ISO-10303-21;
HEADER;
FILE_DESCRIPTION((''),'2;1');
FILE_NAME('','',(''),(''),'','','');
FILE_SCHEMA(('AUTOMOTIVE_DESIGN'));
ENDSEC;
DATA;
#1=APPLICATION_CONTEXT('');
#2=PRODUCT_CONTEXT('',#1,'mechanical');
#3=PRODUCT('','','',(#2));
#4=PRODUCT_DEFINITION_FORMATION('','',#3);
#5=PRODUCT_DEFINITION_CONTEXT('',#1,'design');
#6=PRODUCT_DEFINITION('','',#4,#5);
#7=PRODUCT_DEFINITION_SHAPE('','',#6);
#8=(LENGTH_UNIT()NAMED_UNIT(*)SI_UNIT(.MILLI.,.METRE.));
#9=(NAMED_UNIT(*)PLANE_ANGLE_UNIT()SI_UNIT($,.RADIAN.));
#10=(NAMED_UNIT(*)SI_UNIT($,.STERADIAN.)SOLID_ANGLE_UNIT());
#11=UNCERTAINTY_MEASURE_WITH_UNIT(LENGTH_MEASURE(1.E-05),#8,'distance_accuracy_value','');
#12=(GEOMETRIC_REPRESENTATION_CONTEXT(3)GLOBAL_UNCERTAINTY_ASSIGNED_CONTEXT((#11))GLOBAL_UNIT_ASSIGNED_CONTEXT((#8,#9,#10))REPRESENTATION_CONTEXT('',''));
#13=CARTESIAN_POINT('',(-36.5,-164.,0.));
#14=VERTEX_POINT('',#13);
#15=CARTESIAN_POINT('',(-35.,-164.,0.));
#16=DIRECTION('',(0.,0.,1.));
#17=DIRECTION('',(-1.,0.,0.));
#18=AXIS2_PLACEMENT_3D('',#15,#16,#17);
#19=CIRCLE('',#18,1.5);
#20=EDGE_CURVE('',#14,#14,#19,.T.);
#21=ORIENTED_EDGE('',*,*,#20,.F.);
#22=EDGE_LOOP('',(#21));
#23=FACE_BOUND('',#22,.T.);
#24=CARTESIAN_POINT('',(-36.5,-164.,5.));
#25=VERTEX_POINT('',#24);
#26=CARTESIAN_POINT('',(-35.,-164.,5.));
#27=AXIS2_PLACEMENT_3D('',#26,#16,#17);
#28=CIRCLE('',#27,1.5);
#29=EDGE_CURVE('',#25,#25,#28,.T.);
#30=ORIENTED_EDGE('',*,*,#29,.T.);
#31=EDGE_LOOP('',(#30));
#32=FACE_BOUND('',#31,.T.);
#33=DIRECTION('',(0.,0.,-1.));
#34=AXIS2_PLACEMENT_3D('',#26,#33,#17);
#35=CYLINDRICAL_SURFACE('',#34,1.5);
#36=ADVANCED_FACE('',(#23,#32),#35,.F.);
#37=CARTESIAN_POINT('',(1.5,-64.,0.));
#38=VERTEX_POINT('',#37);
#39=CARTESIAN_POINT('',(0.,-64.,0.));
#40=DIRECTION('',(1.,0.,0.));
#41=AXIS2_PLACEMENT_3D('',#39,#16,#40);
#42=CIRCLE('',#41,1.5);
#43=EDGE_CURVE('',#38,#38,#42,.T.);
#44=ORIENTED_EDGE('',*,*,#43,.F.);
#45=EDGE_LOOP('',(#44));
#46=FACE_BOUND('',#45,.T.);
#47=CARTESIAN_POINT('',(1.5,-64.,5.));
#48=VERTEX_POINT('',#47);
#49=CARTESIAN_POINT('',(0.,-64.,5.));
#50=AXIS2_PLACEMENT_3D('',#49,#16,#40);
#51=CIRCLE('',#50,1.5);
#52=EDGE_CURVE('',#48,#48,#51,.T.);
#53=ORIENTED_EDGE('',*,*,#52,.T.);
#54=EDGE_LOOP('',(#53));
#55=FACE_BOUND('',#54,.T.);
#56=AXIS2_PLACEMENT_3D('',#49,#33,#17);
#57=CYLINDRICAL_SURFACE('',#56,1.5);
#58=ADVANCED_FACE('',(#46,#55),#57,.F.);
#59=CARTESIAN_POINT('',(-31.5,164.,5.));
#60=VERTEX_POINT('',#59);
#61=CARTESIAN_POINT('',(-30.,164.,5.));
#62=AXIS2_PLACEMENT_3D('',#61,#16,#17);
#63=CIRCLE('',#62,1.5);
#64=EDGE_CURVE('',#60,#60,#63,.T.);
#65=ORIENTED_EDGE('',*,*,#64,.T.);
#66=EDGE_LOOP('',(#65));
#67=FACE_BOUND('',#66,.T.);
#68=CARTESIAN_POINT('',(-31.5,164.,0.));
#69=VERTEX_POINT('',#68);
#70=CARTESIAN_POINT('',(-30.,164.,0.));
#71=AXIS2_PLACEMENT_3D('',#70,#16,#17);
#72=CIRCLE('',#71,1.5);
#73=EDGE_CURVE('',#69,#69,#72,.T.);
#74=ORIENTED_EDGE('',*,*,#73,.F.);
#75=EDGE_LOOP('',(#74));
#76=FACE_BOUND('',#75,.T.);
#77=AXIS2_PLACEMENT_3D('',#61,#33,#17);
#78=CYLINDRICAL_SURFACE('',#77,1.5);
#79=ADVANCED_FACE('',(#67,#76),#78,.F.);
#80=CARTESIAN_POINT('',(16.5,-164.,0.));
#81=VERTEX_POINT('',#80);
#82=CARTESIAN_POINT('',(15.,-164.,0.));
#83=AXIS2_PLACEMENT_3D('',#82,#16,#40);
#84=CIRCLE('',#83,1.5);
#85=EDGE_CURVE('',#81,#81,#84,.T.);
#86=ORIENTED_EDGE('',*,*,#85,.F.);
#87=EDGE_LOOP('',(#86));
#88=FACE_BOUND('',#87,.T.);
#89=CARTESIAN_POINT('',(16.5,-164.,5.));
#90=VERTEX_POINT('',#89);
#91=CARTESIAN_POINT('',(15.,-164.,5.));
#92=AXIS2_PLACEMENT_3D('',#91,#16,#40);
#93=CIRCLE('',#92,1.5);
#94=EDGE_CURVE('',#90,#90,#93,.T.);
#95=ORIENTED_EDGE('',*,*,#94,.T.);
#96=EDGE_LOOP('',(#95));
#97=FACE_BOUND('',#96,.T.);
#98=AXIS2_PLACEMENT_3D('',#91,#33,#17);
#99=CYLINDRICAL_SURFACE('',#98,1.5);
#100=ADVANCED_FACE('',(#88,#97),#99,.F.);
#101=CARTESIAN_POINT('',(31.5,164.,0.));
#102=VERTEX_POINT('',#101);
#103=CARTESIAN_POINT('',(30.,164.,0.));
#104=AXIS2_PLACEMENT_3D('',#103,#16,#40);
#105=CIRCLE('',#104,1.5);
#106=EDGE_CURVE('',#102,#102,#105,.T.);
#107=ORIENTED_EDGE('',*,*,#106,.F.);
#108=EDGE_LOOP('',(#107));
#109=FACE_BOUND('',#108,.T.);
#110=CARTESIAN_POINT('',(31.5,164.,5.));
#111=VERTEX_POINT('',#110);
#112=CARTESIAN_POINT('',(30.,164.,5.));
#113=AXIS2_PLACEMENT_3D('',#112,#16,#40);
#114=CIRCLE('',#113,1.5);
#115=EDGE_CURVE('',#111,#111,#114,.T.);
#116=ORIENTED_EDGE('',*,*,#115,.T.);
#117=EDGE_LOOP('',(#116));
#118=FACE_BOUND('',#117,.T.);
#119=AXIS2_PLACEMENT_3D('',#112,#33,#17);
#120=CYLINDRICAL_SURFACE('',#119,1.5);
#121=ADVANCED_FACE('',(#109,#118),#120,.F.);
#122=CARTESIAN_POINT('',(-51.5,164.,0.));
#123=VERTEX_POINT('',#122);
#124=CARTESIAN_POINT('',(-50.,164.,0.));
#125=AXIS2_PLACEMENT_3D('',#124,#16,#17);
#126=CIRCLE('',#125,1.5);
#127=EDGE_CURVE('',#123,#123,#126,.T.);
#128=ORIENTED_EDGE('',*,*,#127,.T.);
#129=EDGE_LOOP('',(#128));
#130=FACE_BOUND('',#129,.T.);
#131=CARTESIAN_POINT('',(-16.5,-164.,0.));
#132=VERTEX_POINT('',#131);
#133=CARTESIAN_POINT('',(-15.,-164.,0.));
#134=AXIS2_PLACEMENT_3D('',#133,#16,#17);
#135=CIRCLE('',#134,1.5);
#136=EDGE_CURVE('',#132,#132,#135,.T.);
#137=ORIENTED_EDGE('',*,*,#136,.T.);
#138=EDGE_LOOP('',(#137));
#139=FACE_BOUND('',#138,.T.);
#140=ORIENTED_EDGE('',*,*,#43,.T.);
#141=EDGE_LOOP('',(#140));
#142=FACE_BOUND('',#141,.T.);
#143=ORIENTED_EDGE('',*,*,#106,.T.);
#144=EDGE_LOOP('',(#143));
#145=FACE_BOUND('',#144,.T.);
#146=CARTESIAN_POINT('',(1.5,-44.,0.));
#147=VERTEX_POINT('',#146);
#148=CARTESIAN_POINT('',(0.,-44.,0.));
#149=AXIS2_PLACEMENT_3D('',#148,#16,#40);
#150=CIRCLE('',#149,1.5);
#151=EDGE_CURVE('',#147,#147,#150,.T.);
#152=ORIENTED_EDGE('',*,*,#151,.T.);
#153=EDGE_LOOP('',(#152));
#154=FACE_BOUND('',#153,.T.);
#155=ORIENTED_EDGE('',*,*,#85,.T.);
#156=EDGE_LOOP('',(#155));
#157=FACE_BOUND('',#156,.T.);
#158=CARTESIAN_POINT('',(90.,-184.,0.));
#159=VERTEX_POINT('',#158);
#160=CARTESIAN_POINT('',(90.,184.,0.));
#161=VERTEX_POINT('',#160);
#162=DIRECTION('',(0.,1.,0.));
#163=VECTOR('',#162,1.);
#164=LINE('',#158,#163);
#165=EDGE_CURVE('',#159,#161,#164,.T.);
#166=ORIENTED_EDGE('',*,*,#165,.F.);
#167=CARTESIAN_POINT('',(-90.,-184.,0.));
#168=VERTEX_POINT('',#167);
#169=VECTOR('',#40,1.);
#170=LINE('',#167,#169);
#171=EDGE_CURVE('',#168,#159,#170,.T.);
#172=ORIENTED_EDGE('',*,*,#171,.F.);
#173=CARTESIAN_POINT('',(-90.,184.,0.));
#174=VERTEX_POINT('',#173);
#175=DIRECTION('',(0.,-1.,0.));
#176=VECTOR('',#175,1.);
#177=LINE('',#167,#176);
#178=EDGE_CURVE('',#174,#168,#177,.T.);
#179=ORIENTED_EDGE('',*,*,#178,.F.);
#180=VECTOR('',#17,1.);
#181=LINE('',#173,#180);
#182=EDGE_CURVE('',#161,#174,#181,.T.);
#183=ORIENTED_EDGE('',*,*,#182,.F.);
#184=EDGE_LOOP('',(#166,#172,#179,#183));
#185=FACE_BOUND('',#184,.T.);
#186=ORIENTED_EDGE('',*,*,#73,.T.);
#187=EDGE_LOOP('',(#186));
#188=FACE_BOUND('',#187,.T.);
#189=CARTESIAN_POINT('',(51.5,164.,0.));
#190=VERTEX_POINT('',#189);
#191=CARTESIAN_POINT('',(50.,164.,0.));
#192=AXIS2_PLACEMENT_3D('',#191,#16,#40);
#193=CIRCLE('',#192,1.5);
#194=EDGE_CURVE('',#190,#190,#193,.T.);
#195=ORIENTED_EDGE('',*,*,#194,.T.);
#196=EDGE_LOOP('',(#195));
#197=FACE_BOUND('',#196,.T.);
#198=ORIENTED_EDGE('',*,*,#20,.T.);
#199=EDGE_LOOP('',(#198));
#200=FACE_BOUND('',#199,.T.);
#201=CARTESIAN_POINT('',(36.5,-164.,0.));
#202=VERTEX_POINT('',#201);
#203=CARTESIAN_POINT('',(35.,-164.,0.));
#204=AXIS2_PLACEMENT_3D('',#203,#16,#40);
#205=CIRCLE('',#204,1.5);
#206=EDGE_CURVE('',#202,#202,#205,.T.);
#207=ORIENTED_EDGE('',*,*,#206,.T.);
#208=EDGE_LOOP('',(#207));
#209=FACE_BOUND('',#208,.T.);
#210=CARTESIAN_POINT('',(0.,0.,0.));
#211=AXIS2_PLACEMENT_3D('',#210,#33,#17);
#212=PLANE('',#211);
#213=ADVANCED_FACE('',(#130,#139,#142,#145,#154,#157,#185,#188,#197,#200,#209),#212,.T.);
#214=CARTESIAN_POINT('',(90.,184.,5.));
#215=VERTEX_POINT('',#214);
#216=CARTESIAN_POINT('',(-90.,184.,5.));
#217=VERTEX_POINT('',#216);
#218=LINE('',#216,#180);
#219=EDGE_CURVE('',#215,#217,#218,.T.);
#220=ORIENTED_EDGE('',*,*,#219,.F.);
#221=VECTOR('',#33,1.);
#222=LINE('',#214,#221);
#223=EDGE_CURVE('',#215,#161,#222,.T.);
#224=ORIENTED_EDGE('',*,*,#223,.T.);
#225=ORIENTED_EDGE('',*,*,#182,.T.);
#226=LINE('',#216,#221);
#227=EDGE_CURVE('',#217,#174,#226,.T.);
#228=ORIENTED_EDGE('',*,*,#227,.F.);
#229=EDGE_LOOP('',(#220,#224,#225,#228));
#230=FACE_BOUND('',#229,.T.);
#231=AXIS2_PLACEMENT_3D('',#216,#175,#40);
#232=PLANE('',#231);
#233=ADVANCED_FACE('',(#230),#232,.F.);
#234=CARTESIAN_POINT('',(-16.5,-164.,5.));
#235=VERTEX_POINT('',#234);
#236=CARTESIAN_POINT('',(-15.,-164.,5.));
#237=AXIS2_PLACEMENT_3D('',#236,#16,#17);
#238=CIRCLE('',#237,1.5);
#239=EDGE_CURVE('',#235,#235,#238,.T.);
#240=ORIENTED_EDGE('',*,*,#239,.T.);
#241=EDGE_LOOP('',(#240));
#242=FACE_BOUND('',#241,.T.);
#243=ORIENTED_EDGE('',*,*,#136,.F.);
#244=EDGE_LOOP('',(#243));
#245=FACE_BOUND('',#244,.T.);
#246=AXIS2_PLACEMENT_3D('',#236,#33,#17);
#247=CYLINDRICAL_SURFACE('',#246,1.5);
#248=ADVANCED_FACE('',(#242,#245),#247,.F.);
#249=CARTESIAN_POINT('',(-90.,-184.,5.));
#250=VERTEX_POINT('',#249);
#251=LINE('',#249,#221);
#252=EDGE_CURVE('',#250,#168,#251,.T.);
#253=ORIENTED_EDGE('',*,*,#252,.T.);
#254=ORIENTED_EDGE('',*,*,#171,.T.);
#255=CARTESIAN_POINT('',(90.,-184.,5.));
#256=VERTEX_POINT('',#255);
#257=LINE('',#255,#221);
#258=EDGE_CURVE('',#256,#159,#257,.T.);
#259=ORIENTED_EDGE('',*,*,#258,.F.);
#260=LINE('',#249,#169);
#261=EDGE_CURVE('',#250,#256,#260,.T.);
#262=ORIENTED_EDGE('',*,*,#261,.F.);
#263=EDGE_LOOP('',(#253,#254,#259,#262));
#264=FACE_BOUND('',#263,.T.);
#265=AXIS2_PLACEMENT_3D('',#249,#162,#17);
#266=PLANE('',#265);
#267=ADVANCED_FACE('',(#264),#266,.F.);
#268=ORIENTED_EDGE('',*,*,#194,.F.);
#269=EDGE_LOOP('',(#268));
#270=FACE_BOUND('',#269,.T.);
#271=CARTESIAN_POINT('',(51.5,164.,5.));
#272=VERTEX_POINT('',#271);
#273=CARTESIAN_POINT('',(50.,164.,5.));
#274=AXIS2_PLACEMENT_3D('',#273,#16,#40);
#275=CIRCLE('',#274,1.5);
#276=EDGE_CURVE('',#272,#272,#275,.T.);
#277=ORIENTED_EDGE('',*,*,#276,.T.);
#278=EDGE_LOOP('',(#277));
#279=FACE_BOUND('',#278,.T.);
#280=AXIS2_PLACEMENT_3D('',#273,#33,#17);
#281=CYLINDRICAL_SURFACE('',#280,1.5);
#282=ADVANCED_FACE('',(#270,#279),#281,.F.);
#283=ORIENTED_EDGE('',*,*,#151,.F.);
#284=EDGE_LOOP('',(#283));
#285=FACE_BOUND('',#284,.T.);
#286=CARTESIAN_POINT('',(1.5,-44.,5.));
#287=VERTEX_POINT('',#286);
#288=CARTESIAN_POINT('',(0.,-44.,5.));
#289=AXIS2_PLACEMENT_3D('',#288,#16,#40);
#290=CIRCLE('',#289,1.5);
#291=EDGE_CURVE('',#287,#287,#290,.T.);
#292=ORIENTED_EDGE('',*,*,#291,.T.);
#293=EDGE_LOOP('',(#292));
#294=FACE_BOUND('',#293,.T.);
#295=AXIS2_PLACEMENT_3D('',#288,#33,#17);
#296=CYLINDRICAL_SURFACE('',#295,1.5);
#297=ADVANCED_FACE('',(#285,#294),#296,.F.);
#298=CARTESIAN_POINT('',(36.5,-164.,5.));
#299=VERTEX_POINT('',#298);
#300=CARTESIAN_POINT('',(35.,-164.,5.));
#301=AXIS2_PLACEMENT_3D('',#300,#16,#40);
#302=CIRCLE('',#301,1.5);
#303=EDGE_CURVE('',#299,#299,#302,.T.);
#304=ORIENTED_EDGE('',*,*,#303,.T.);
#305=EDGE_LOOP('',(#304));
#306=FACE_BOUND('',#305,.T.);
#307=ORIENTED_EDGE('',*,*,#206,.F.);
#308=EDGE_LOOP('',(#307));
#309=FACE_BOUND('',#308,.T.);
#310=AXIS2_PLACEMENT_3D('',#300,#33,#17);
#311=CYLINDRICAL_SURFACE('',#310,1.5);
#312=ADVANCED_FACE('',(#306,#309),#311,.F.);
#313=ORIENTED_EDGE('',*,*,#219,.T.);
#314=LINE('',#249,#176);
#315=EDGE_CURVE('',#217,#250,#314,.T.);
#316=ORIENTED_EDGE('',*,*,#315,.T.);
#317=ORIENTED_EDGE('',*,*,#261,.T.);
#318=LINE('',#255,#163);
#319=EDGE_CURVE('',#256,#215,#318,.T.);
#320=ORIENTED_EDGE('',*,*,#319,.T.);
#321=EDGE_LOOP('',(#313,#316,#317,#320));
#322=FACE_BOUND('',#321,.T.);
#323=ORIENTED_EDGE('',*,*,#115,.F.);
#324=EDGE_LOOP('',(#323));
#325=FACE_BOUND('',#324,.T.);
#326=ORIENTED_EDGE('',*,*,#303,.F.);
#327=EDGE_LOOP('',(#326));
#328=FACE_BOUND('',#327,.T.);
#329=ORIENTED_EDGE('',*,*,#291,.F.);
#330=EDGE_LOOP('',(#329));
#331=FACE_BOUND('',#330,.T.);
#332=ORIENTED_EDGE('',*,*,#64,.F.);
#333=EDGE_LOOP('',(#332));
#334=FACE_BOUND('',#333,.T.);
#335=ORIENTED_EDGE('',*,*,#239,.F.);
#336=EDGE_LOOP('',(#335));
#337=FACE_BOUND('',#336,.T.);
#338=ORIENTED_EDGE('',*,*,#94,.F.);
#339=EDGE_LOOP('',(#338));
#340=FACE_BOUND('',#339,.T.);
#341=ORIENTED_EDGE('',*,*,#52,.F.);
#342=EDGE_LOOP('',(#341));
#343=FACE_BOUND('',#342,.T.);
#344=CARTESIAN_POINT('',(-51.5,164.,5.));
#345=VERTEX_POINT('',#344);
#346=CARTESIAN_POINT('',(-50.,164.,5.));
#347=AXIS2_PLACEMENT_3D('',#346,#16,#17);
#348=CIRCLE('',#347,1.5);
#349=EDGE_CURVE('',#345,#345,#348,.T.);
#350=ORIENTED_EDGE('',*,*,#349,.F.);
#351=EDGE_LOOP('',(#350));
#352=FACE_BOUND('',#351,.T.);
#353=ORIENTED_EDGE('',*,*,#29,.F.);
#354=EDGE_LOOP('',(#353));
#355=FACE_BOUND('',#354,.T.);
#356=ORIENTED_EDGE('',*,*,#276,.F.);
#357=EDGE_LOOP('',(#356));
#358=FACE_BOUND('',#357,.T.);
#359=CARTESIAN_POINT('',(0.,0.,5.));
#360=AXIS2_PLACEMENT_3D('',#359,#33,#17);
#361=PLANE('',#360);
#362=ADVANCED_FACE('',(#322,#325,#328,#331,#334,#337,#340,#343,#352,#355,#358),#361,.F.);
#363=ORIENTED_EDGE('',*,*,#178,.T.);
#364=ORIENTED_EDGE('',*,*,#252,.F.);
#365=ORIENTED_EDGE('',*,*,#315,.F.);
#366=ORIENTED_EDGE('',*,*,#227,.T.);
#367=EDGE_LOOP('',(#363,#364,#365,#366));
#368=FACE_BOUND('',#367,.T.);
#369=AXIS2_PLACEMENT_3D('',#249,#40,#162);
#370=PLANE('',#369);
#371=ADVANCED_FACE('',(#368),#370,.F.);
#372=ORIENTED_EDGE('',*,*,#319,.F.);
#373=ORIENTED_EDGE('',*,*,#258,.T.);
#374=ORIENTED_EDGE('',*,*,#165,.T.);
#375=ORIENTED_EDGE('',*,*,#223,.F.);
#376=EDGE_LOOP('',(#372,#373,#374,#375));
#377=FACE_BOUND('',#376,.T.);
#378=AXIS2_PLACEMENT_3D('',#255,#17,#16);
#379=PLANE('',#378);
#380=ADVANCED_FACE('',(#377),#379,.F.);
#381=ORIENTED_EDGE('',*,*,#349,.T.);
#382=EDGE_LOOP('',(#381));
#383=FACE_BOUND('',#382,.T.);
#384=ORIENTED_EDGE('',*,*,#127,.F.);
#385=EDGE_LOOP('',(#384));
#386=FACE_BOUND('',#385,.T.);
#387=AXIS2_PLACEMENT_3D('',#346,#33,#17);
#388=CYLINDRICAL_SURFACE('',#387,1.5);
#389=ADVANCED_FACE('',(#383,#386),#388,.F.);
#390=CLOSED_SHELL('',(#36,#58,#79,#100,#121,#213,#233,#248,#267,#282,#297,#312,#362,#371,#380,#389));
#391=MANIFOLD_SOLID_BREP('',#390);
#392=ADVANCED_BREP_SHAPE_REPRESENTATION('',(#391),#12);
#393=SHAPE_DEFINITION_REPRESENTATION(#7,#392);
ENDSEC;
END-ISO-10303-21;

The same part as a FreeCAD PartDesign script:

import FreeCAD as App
import Part
import Sketcher
from FreeCAD import Vector
Q = App.Units.Quantity

doc = App.newDocument("Part")
body = doc.addObject("PartDesign::Body", "Body")

# Sketch on XY plane
sketch1 = body.newObject("Sketcher::SketchObject", "Sketch")
sketch1.AttachmentSupport = (doc.getObject("XY_Plane"), [""])
sketch1.MapMode = "FlatFace"
sketch1.addGeometry(Part.LineSegment(Vector(-90, 184, 0), Vector(-90, -184, 0)), False)
sketch1.addGeometry(Part.LineSegment(Vector(-90, -184, 0), Vector(90, -184, 0)), False)
sketch1.addGeometry(Part.LineSegment(Vector(90, -184, 0), Vector(90, 184, 0)), False)
sketch1.addGeometry(Part.LineSegment(Vector(90, 184, 0), Vector(-90, 184, 0)), False)
sketch1.addGeometry(Part.Circle(Vector(-35, -164, 0), Vector(0, 0, 1), 1.5), False)
sketch1.addGeometry(Part.Circle(Vector(-15, -164, 0), Vector(0, 0, 1), 1.5), False)
sketch1.addGeometry(Part.Circle(Vector(0, -64, 0), Vector(0, 0, 1), 1.5), False)
sketch1.addGeometry(Part.Circle(Vector(0, -44, 0), Vector(0, 0, 1), 1.5), False)
sketch1.addGeometry(Part.Circle(Vector(15, -164, 0), Vector(0, 0, 1), 1.5), False)
sketch1.addGeometry(Part.Circle(Vector(35, -164, 0), Vector(0, 0, 1), 1.5), False)
sketch1.addGeometry(Part.Circle(Vector(-50, 164, 0), Vector(0, 0, 1), 1.5), False)
sketch1.addGeometry(Part.Circle(Vector(-30, 164, 0), Vector(0, 0, 1), 1.5), False)
sketch1.addGeometry(Part.Circle(Vector(30, 164, 0), Vector(0, 0, 1), 1.5), False)
sketch1.addGeometry(Part.Circle(Vector(50, 164, 0), Vector(0, 0, 1), 1.5), False)
sketch1.addConstraint(Sketcher.Constraint("Coincident", 0, 2, 1, 1))
sketch1.addConstraint(Sketcher.Constraint("Coincident", 1, 2, 2, 1))
sketch1.addConstraint(Sketcher.Constraint("Coincident", 2, 2, 3, 1))
sketch1.addConstraint(Sketcher.Constraint("Coincident", 3, 2, 0, 1))
sketch1.addConstraint(Sketcher.Constraint("Vertical", 0))
sketch1.addConstraint(Sketcher.Constraint("Horizontal", 1))
sketch1.addConstraint(Sketcher.Constraint("Vertical", 2))
sketch1.addConstraint(Sketcher.Constraint("Horizontal", 3))
sketch1.addConstraint(Sketcher.Constraint("Equal", 4, 5))
sketch1.addConstraint(Sketcher.Constraint("Equal", 5, 6))
sketch1.addConstraint(Sketcher.Constraint("Equal", 6, 7))
sketch1.addConstraint(Sketcher.Constraint("Equal", 7, 8))
sketch1.addConstraint(Sketcher.Constraint("Equal", 8, 9))
sketch1.addConstraint(Sketcher.Constraint("Equal", 9, 10))
sketch1.addConstraint(Sketcher.Constraint("Equal", 10, 11))
sketch1.addConstraint(Sketcher.Constraint("Equal", 11, 12))
sketch1.addConstraint(Sketcher.Constraint("Equal", 12, 13))
sketch1.addConstraint(Sketcher.Constraint("Symmetric", 0, 2, 2, 2, -1, 1))
sketch1.addConstraint(Sketcher.Constraint("Symmetric", 5, 3, 8, 3, -2))
sketch1.addConstraint(Sketcher.Constraint("Symmetric", 4, 3, 9, 3, -2))
sketch1.addConstraint(Sketcher.Constraint("Symmetric", 11, 3, 12, 3, -2))
sketch1.addConstraint(Sketcher.Constraint("Symmetric", 10, 3, 13, 3, -2))
sketch1.addConstraint(Sketcher.Constraint("PointOnObject", 6, 3, -2))
sketch1.addConstraint(Sketcher.Constraint("PointOnObject", 7, 3, -2))
sketch1.addConstraint(Sketcher.Constraint("Horizontal", 4, 3, 5, 3))
sketch1.addConstraint(Sketcher.Constraint("Horizontal", 10, 3, 11, 3))
sketch1.addConstraint(Sketcher.Constraint("Diameter", 4, Q("3 mm")))
sketch1.addConstraint(Sketcher.Constraint("DistanceX", 1, 1, 1, 2, Q("180 mm")))
sketch1.addConstraint(Sketcher.Constraint("DistanceY", 0, 2, 0, 1, Q("368 mm")))
sketch1.addConstraint(Sketcher.Constraint("DistanceX", 4, 3, -1, 1, Q("35 mm")))
sketch1.addConstraint(Sketcher.Constraint("DistanceY", 4, 3, -1, 1, Q("164 mm")))
sketch1.addConstraint(Sketcher.Constraint("DistanceX", 5, 3, -1, 1, Q("15 mm")))
sketch1.addConstraint(Sketcher.Constraint("DistanceY", 6, 3, -1, 1, Q("64 mm")))
sketch1.addConstraint(Sketcher.Constraint("DistanceY", 7, 3, -1, 1, Q("44 mm")))
sketch1.addConstraint(Sketcher.Constraint("DistanceX", 10, 3, -1, 1, Q("50 mm")))
sketch1.addConstraint(Sketcher.Constraint("DistanceY", -1, 1, 10, 3, Q("164 mm")))
sketch1.addConstraint(Sketcher.Constraint("DistanceX", 11, 3, -1, 1, Q("30 mm")))
pad1 = body.newObject("PartDesign::Pad", "Pad")
pad1.Profile = sketch1
pad1.Length = 5

doc.recompute()
